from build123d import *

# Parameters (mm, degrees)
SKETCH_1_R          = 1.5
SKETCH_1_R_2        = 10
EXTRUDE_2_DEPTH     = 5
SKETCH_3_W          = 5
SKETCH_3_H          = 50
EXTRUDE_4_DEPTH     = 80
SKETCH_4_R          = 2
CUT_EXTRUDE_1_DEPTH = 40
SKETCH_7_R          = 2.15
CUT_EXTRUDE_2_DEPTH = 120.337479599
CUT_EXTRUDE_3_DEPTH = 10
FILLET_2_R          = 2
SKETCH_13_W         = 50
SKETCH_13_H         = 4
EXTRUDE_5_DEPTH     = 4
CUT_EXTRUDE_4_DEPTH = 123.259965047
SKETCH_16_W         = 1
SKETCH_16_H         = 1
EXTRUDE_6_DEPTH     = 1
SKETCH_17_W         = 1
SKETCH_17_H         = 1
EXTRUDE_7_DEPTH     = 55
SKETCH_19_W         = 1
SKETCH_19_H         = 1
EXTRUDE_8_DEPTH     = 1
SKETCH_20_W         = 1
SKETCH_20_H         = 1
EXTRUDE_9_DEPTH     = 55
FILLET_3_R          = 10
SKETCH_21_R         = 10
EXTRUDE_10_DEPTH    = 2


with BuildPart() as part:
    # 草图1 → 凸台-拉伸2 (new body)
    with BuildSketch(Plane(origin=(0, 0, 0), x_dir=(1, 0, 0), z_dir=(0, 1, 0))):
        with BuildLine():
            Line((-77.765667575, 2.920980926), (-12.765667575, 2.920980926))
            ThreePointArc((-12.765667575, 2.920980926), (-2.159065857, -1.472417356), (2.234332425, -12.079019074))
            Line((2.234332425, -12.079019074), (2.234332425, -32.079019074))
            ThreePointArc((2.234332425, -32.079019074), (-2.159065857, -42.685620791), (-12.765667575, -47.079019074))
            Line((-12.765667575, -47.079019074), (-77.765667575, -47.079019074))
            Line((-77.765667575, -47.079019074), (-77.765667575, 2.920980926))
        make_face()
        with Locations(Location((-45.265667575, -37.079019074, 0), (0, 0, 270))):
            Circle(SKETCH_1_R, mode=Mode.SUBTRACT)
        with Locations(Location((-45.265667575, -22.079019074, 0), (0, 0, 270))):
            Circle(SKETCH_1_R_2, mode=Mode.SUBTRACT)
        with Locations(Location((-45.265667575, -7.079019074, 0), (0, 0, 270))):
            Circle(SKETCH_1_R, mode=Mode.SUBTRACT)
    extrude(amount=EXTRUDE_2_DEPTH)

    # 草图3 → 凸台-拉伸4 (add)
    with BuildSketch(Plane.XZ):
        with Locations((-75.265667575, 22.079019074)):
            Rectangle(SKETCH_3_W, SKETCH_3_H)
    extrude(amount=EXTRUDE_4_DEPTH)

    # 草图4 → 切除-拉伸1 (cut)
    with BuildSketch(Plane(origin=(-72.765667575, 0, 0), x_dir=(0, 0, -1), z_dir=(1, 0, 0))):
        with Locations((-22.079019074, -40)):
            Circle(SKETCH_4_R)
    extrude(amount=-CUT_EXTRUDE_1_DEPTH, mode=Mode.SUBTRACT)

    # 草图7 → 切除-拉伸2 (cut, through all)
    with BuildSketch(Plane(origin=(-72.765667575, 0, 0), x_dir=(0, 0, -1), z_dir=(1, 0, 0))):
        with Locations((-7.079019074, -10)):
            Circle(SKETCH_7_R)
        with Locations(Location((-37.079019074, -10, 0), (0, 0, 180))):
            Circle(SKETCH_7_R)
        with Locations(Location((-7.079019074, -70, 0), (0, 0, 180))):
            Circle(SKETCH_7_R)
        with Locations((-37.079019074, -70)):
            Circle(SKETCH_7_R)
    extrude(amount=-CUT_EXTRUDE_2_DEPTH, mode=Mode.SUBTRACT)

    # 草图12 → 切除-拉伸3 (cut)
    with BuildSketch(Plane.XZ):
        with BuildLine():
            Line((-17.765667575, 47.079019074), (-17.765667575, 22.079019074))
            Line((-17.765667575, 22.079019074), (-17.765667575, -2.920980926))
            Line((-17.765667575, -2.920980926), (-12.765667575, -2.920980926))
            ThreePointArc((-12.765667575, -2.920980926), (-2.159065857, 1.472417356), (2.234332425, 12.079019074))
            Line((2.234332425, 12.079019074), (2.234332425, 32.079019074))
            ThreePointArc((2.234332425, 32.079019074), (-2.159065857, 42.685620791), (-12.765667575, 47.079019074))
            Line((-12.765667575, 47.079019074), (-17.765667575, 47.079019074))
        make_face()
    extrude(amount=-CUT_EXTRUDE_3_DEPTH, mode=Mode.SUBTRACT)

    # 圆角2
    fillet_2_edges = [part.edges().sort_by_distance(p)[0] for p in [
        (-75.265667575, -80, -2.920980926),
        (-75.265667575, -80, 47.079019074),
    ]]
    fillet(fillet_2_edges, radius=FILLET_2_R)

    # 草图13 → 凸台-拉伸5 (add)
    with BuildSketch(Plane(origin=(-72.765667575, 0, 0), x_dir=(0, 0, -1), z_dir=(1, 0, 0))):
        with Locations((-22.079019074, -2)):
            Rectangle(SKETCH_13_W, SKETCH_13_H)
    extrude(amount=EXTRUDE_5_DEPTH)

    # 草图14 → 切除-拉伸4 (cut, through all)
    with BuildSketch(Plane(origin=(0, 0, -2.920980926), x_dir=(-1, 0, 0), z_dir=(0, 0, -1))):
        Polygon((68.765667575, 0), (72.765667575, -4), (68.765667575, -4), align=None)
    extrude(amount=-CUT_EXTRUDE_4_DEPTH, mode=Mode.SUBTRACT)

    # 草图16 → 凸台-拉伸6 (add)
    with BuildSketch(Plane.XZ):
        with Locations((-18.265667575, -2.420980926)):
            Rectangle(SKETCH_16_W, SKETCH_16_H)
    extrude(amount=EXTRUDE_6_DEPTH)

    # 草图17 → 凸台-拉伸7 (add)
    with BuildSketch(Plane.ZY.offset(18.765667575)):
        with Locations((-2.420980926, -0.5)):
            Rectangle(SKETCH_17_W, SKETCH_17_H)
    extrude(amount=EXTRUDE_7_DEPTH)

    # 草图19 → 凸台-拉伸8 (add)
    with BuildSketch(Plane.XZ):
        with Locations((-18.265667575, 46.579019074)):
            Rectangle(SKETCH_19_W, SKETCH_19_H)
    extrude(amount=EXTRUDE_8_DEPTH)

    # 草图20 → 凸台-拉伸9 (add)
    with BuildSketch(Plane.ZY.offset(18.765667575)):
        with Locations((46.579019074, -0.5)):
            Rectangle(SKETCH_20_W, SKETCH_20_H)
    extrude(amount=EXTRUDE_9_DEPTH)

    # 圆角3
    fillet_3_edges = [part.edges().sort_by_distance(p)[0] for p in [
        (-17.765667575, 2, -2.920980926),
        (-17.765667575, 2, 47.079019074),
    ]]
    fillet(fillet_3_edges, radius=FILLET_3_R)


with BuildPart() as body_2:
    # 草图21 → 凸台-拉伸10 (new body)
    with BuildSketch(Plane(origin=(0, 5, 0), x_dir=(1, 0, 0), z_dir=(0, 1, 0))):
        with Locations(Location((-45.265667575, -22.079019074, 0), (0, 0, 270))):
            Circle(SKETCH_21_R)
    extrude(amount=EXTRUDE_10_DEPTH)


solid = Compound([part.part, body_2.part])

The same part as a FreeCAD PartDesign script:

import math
import FreeCAD as App
import Part
import Sketcher

V = App.Vector
Q = App.Units.Quantity


def edges_at(feature, points):
    """Names of the edges that pass closest to the given points."""
    edges = feature.Shape.Edges
    near = lambda p: min(range(len(edges)), key=lambda i: edges[i].distToShape(Part.Vertex(*p))[0])
    return sorted({f"Edge{near(p) + 1}" for p in points})

doc = App.newDocument("Part")
params = doc.addObject("Spreadsheet::Sheet", "Params")
for row, (alias, value) in enumerate([
    ("sketch1_diameter", "3 mm"),
    ("sketch1_diameter2", "20 mm"),
    ("sketch1_radius", "15 mm"),
    ("sketch1_width", "65 mm"),
    ("sketch1_height", "50 mm"),
    ("pad1_length", "5 mm"),
    ("sketch2_width", "5 mm"),
    ("sketch2_height", "50 mm"),
    ("pad2_length", "80 mm"),
    ("sketch3_diameter", "4 mm"),
    ("pocket1_length", "40 mm"),
    ("sketch4_diameter", "4.3 mm"),
    ("sketch5_radius", "15 mm"),
    ("sketch5_width", "5 mm"),
    ("sketch5_height", "50 mm"),
    ("pocket3_length", "10 mm"),
    ("fillet_radius", "2 mm"),
    ("sketch6_width", "4 mm"),
    ("sketch6_height", "50 mm"),
    ("pad3_length", "4 mm"),
    ("sketch7_width", "4 mm"),
    ("sketch8_width", "1 mm"),
    ("pad4_length", "1 mm"),
    ("sketch9_width", "1 mm"),
    ("pad5_length", "55 mm"),
    ("sketch10_width", "1 mm"),
    ("pad6_length", "1 mm"),
    ("sketch11_width", "1 mm"),
    ("pad7_length", "55 mm"),
    ("fillet2_radius", "10 mm"),
    ("sketch12_diameter", "20 mm"),
    ("pad8_length", "2 mm"),
], start=1):
    params.set(f"A{row}", alias)
    params.set(f"B{row}", "=" + value)
    params.setAlias(f"B{row}", alias)

body = doc.addObject("PartDesign::Body", "Body")

# Sketch on XZ plane
sketch1 = body.newObject("Sketcher::SketchObject", "Sketch")
sketch1.AttachmentSupport = (doc.getObject("XZ_Plane"), [""])
sketch1.MapMode = "FlatFace"
sketch1.addGeometry([
    Part.LineSegment(V(-12.8, -2.9, 0), V(-77.8, -2.9, 0)),  # 0
    Part.LineSegment(V(-77.8, -2.9, 0), V(-77.8, 47.1, 0)),  # 1
    Part.LineSegment(V(-77.8, 47.1, 0), V(-12.8, 47.1, 0)),  # 2
    Part.ArcOfCircle(Part.Circle(V(-12.8, 32.1, 0), V(0, 0, 1), 15), math.radians(0), math.radians(90)),  # 3
    Part.LineSegment(V(2.2, 32.1, 0), V(2.2, 12.1, 0)),  # 4
    Part.ArcOfCircle(Part.Circle(V(-12.8, 12.1, 0), V(0, 0, 1), 15), math.radians(-90), math.radians(0)),  # 5
    Part.Circle(V(-45.3, 37.1, 0), V(0, 0, 1), 1.5),  # 6
    Part.Circle(V(-45.3, 22.1, 0), V(0, 0, 1), 10),  # 7
    Part.Circle(V(-45.3, 7.1, 0), V(0, 0, 1), 1.5),  # 8
], False)
sketch1.addConstraint([
    Sketcher.Constraint("Coincident", 0, 2, 1, 1),
    Sketcher.Constraint("Coincident", 1, 2, 2, 1),
    Sketcher.Constraint("Tangent", 2, 2, 3, 2),
    Sketcher.Constraint("Tangent", 3, 1, 4, 1),
    Sketcher.Constraint("Tangent", 4, 2, 5, 2),
    Sketcher.Constraint("Tangent", 5, 1, 0, 1),
    Sketcher.Constraint("Horizontal", 0),
    Sketcher.Constraint("Vertical", 1),
    Sketcher.Constraint("Horizontal", 2),
    Sketcher.Constraint("Vertical", 4),
    Sketcher.Constraint("Equal", 3, 5),
    Sketcher.Constraint("Equal", 6, 8),
    Sketcher.Constraint("Vertical", 6, 3, 7, 3),
    Sketcher.Constraint("Vertical", 7, 3, 8, 3),
    Sketcher.Constraint("Diameter", 6, Q("3 mm")),
    Sketcher.Constraint("Diameter", 7, Q("20 mm")),
    Sketcher.Constraint("Radius", 3, Q("15 mm")),
    Sketcher.Constraint("DistanceX", 0, 2, 0, 1, Q("65 mm")),
    Sketcher.Constraint("DistanceY", 1, 1, 1, 2, Q("50 mm")),
    Sketcher.Constraint("DistanceY", 3, 3, 6, 3, Q("5 mm")),
    Sketcher.Constraint("DistanceY", 7, 3, 6, 3, Q("15 mm")),
    Sketcher.Constraint("DistanceY", 8, 3, 7, 3, Q("15 mm")),
    Sketcher.Constraint("DistanceX", 6, 3, 3, 3, Q("32.5 mm")),
    Sketcher.Constraint("DistanceY", -1, 1, 3, 3, Q("32.079019 mm")),
    Sketcher.Constraint("DistanceX", 3, 3, -1, 1, Q("12.765668 mm")),
])
sketch1.setExpression("Constraints[14]", "Params.sketch1_diameter")
sketch1.setExpression("Constraints[15]", "Params.sketch1_diameter2")
sketch1.setExpression("Constraints[16]", "Params.sketch1_radius")
sketch1.setExpression("Constraints[17]", "Params.sketch1_width")
sketch1.setExpression("Constraints[18]", "Params.sketch1_height")
pad1 = body.newObject("PartDesign::Pad", "Pad")
pad1.Profile = sketch1
pad1.setExpression("Length", "Params.pad1_length")
pad1.Reversed = True

# Sketch on XZ plane
sketch2 = body.newObject("Sketcher::SketchObject", "Sketch001")
sketch2.AttachmentSupport = (doc.getObject("XZ_Plane"), [""])
sketch2.MapMode = "FlatFace"
sketch2.addGeometry([
    Part.LineSegment(V(-78, 47, 0), V(-78, -3, 0)),
    Part.LineSegment(V(-78, -3, 0), V(-73, -3, 0)),
    Part.LineSegment(V(-73, -3, 0), V(-73, 47, 0)),
    Part.LineSegment(V(-73, 47, 0), V(-78, 47, 0)),
], False)
sketch2.addConstraint([
    Sketcher.Constraint("Coincident", 0, 2, 1, 1),
    Sketcher.Constraint("Coincident", 1, 2, 2, 1),
    Sketcher.Constraint("Coincident", 2, 2, 3, 1),
    Sketcher.Constraint("Coincident", 3, 2, 0, 1),
    Sketcher.Constraint("Vertical", 0),
    Sketcher.Constraint("Horizontal", 1),
    Sketcher.Constraint("Vertical", 2),
    Sketcher.Constraint("Horizontal", 3),
    Sketcher.Constraint("DistanceX", 1, 1, 1, 2, Q("5 mm")),
    Sketcher.Constraint("DistanceY", 0, 2, 0, 1, Q("50 mm")),
    Sketcher.Constraint("DistanceY", 0, 2, -1, 1, Q("2.920981 mm")),
    Sketcher.Constraint("DistanceX", 0, 2, -1, 1, Q("77.765668 mm")),
])
sketch2.setExpression("Constraints[8]", "Params.sketch2_width")
sketch2.setExpression("Constraints[9]", "Params.sketch2_height")
pad2 = body.newObject("PartDesign::Pad", "Pad001")
pad2.Profile = sketch2
pad2.setExpression("Length", "Params.pad2_length")

# Sketch on YZ plane
sketch3 = body.newObject("Sketcher::SketchObject", "Sketch002")
sketch3.AttachmentSupport = (doc.getObject("YZ_Plane"), [""])
sketch3.MapMode = "FlatFace"
sketch3.AttachmentOffset = App.Placement(V(0, 0, -72.765668), App.Rotation())
sketch3.addGeometry(Part.Circle(V(-40, 22.1, 0), V(0, 0, 1), 2), False)
sketch3.addConstraint([
    Sketcher.Constraint("Diameter", 0, Q("4 mm")),
    Sketcher.Constraint("DistanceX", 0, 3, -1, 1, Q("40 mm")),
    Sketcher.Constraint("DistanceY", -1, 1, 0, 3, Q("22.079019 mm")),
])
sketch3.setExpression("Constraints[0]", "Params.sketch3_diameter")
pocket1 = body.newObject("PartDesign::Pocket", "Pocket")
pocket1.Profile = sketch3
pocket1.setExpression("Length", "Params.pocket1_length")

# Sketch on YZ plane
sketch4 = body.newObject("Sketcher::SketchObject", "Sketch003")
sketch4.AttachmentSupport = (doc.getObject("YZ_Plane"), [""])
sketch4.MapMode = "FlatFace"
sketch4.AttachmentOffset = App.Placement(V(0, 0, -72.765668), App.Rotation())
sketch4.addGeometry([
    Part.Circle(V(-10, 7.1, 0), V(0, 0, 1), 2.1),
    Part.Circle(V(-10, 37.1, 0), V(0, 0, 1), 2.1),
    Part.Circle(V(-70, 7.1, 0), V(0, 0, 1), 2.1),
    Part.Circle(V(-70, 37.1, 0), V(0, 0, 1), 2.1),
], False)
sketch4.addConstraint([
    Sketcher.Constraint("Equal", 0, 1),
    Sketcher.Constraint("Equal", 1, 2),
    Sketcher.Constraint("Equal", 2, 3),
    Sketcher.Constraint("Horizontal", 0, 3, 2, 3),
    Sketcher.Constraint("Horizontal", 1, 3, 3, 3),
    Sketcher.Constraint("Vertical", 0, 3, 1, 3),
    Sketcher.Constraint("Vertical", 2, 3, 3, 3),
    Sketcher.Constraint("Diameter", 0, Q("4.3 mm")),
    Sketcher.Constraint("DistanceX", 0, 3, -1, 1, Q("10 mm")),
    Sketcher.Constraint("DistanceX", 2, 3, -1, 1, Q("70 mm")),
    Sketcher.Constraint("DistanceY", 0, 3, 1, 3, Q("30 mm")),
    Sketcher.Constraint("DistanceY", -1, 1, 0, 3, Q("7.079019 mm")),
])
sketch4.setExpression("Constraints[7]", "Params.sketch4_diameter")
pocket2 = body.newObject("PartDesign::Pocket", "Pocket001")
pocket2.Profile = sketch4
pocket2.Type = "ThroughAll"

# Sketch on XZ plane
sketch5 = body.newObject("Sketcher::SketchObject", "Sketch004")
sketch5.AttachmentSupport = (doc.getObject("XZ_Plane"), [""])
sketch5.MapMode = "FlatFace"
sketch5.addGeometry([
    Part.LineSegment(V(-17.8, 47.1, 0), V(-17.8, -2.9, 0)),  # 0
    Part.LineSegment(V(-17.8, -2.9, 0), V(-12.8, -2.9, 0)),  # 1
    Part.ArcOfCircle(Part.Circle(V(-12.8, 12.1, 0), V(0, 0, 1), 15), math.radians(-90), math.radians(0)),  # 2
    Part.LineSegment(V(2.2, 12.1, 0), V(2.2, 32.1, 0)),  # 3
    Part.ArcOfCircle(Part.Circle(V(-12.8, 32.1, 0), V(0, 0, 1), 15), math.radians(0), math.radians(90)),  # 4
    Part.LineSegment(V(-12.8, 47.1, 0), V(-17.8, 47.1, 0)),  # 5
], False)
sketch5.addConstraint([
    Sketcher.Constraint("Coincident", 0, 2, 1, 1),
    Sketcher.Constraint("Tangent", 1, 2, 2, 1),
    Sketcher.Constraint("Tangent", 2, 2, 3, 1),
    Sketcher.Constraint("Tangent", 3, 2, 4, 1),
    Sketcher.Constraint("Tangent", 4, 2, 5, 1),
    Sketcher.Constraint("Coincident", 5, 2, 0, 1),
    Sketcher.Constraint("Vertical", 0),
    Sketcher.Constraint("Horizontal", 1),
    Sketcher.Constraint("Vertical", 3),
    Sketcher.Constraint("Horizontal", 5),
    Sketcher.Constraint("Equal", 2, 4),
    Sketcher.Constraint("Radius", 2, Q("15 mm")),
    Sketcher.Constraint("DistanceX", 1, 1, 1, 2, Q("5 mm")),
    Sketcher.Constraint("DistanceY", 0, 2, 0, 1, Q("50 mm")),
    Sketcher.Constraint("DistanceY", -1, 1, 2, 3, Q("12.079019 mm")),
    Sketcher.Constraint("DistanceX", 2, 3, -1, 1, Q("12.765668 mm")),
])
sketch5.setExpression("Constraints[11]", "Params.sketch5_radius")
sketch5.setExpression("Constraints[12]", "Params.sketch5_width")
sketch5.setExpression("Constraints[13]", "Params.sketch5_height")
pocket3 = body.newObject("PartDesign::Pocket", "Pocket002")
pocket3.Profile = sketch5
pocket3.setExpression("Length", "Params.pocket3_length")
doc.recompute()

fillet = body.newObject("PartDesign::Fillet", "Fillet")
fillet.Base = (pocket3, edges_at(pocket3, [(-75.266, -80, -2.921), (-75.266, -80, 47.079)]))
fillet.setExpression("Radius", "Params.fillet_radius")

# Sketch on YZ plane
sketch6 = body.newObject("Sketcher::SketchObject", "Sketch005")
sketch6.AttachmentSupport = (doc.getObject("YZ_Plane"), [""])
sketch6.MapMode = "FlatFace"
sketch6.AttachmentOffset = App.Placement(V(0, 0, -72.765668), App.Rotation())
sketch6.addGeometry([
    Part.LineSegment(V(0, 47.1, 0), V(-4, 47.1, 0)),
    Part.LineSegment(V(-4, 47.1, 0), V(-4, -2.9, 0)),
    Part.LineSegment(V(-4, -2.9, 0), V(0, -2.9, 0)),
    Part.LineSegment(V(0, -2.9, 0), V(0, 47.1, 0)),
], False)
sketch6.addConstraint([
    Sketcher.Constraint("Coincident", 0, 2, 1, 1),
    Sketcher.Constraint("Coincident", 1, 2, 2, 1),
    Sketcher.Constraint("Coincident", 2, 2, 3, 1),
    Sketcher.Constraint("Coincident", 3, 2, 0, 1),
    Sketcher.Constraint("Horizontal", 0),
    Sketcher.Constraint("Vertical", 1),
    Sketcher.Constraint("Horizontal", 2),
    Sketcher.Constraint("Vertical", 3),
    Sketcher.Constraint("PointOnObject", 2, 2, -2),
    Sketcher.Constraint("DistanceX", 0, 2, 0, 1, Q("4 mm")),
    Sketcher.Constraint("DistanceY", 1, 2, 1, 1, Q("50 mm")),
    Sketcher.Constraint("DistanceY", -1, 1, 0, 2, Q("47.079019 mm")),
])
sketch6.setExpression("Constraints[9]", "Params.sketch6_width")
sketch6.setExpression("Constraints[10]", "Params.sketch6_height")
pad3 = body.newObject("PartDesign::Pad", "Pad002")
pad3.Profile = sketch6
pad3.setExpression("Length", "Params.pad3_length")

# Sketch on XY plane
sketch7 = body.newObject("Sketcher::SketchObject", "Sketch006")
sketch7.AttachmentSupport = (doc.getObject("XY_Plane"), [""])
sketch7.MapMode = "FlatFace"
sketch7.AttachmentOffset = App.Placement(V(0, 0, -2.920981), App.Rotation())
sketch7.addGeometry([
    Part.LineSegment(V(-72.8, -4, 0), V(-68.8, 0, 0)),
    Part.LineSegment(V(-68.8, 0, 0), V(-68.8, -4, 0)),
    Part.LineSegment(V(-68.8, -4, 0), V(-72.8, -4, 0)),
], False)
sketch7.addConstraint([
    Sketcher.Constraint("Coincident", 0, 2, 1, 1),
    Sketcher.Constraint("Coincident", 1, 2, 2, 1),
    Sketcher.Constraint("Coincident", 2, 2, 0, 1),
    Sketcher.Constraint("Vertical", 1),
    Sketcher.Constraint("Horizontal", 2),
    Sketcher.Constraint("PointOnObject", 0, 2, -1),
    Sketcher.Constraint("Equal", 2, 1),
    Sketcher.Constraint("DistanceX", 2, 2, 2, 1, Q("4 mm")),
    Sketcher.Constraint("DistanceX", 0, 2, -1, 1, Q("68.765668 mm")),
])
sketch7.setExpression("Constraints[7]", "Params.sketch7_width")
pocket4 = body.newObject("PartDesign::Pocket", "Pocket003")
pocket4.Profile = sketch7
pocket4.Type = "ThroughAll"
pocket4.Reversed = True

# Sketch on XZ plane
sketch8 = body.newObject("Sketcher::SketchObject", "Sketch007")
sketch8.AttachmentSupport = (doc.getObject("XZ_Plane"), [""])
sketch8.MapMode = "FlatFace"
sketch8.addGeometry([
    Part.LineSegment(V(-18.8, -1.9, 0), V(-18.8, -2.9, 0)),
    Part.LineSegment(V(-18.8, -2.9, 0), V(-17.8, -2.9, 0)),
    Part.LineSegment(V(-17.8, -2.9, 0), V(-17.8, -1.9, 0)),
    Part.LineSegment(V(-17.8, -1.9, 0), V(-18.8, -1.9, 0)),
], False)
sketch8.addConstraint([
    Sketcher.Constraint("Coincident", 0, 2, 1, 1),
    Sketcher.Constraint("Coincident", 1, 2, 2, 1),
    Sketcher.Constraint("Coincident", 2, 2, 3, 1),
    Sketcher.Constraint("Coincident", 3, 2, 0, 1),
    Sketcher.Constraint("Vertical", 0),
    Sketcher.Constraint("Horizontal", 1),
    Sketcher.Constraint("Vertical", 2),
    Sketcher.Constraint("Horizontal", 3),
    Sketcher.Constraint("Equal", 3, 0),
    Sketcher.Constraint("DistanceX", 1, 1, 1, 2, Q("1 mm")),
    Sketcher.Constraint("DistanceY", 0, 2, -1, 1, Q("2.920981 mm")),
    Sketcher.Constraint("DistanceX", 0, 2, -1, 1, Q("18.765668 mm")),
])
sketch8.setExpression("Constraints[9]", "Params.sketch8_width")
pad4 = body.newObject("PartDesign::Pad", "Pad003")
pad4.Profile = sketch8
pad4.setExpression("Length", "Params.pad4_length")

# Sketch on YZ plane
sketch9 = body.newObject("Sketcher::SketchObject", "Sketch008")
sketch9.AttachmentSupport = (doc.getObject("YZ_Plane"), [""])
sketch9.MapMode = "FlatFace"
sketch9.AttachmentOffset = App.Placement(V(0, 0, -18.765668), App.Rotation())
sketch9.addGeometry([
    Part.LineSegment(V(0, -2.9, 0), V(-1, -2.9, 0)),
    Part.LineSegment(V(-1, -2.9, 0), V(-1, -1.9, 0)),
    Part.LineSegment(V(-1, -1.9, 0), V(0, -1.9, 0)),
    Part.LineSegment(V(0, -1.9, 0), V(0, -2.9, 0)),
], False)
sketch9.addConstraint([
    Sketcher.Constraint("Coincident", 0, 2, 1, 1),
    Sketcher.Constraint("Coincident", 1, 2, 2, 1),
    Sketcher.Constraint("Coincident", 2, 2, 3, 1),
    Sketcher.Constraint("Coincident", 3, 2, 0, 1),
    Sketcher.Constraint("Horizontal", 0),
    Sketcher.Constraint("Vertical", 1),
    Sketcher.Constraint("Horizontal", 2),
    Sketcher.Constraint("Vertical", 3),
    Sketcher.Constraint("PointOnObject", 2, 2, -2),
    Sketcher.Constraint("Equal", 2, 1),
    Sketcher.Constraint("DistanceX", 0, 2, 0, 1, Q("1 mm")),
    Sketcher.Constraint("DistanceY", 0, 2, -1, 1, Q("2.920981 mm")),
])
sketch9.setExpression("Constraints[10]", "Params.sketch9_width")
pad5 = body.newObject("PartDesign::Pad", "Pad004")
pad5.Profile = sketch9
pad5.setExpression("Length", "Params.pad5_length")
pad5.Reversed = True

# Sketch on XZ plane
sketch10 = body.newObject("Sketcher::SketchObject", "Sketch009")
sketch10.AttachmentSupport = (doc.getObject("XZ_Plane"), [""])
sketch10.MapMode = "FlatFace"
sketch10.addGeometry([
    Part.LineSegment(V(-18.8, 47.1, 0), V(-18.8, 46.1, 0)),
    Part.LineSegment(V(-18.8, 46.1, 0), V(-17.8, 46.1, 0)),
    Part.LineSegment(V(-17.8, 46.1, 0), V(-17.8, 47.1, 0)),
    Part.LineSegment(V(-17.8, 47.1, 0), V(-18.8, 47.1, 0)),
], False)
sketch10.addConstraint([
    Sketcher.Constraint("Coincident", 0, 2, 1, 1),
    Sketcher.Constraint("Coincident", 1, 2, 2, 1),
    Sketcher.Constraint("Coincident", 2, 2, 3, 1),
    Sketcher.Constraint("Coincident", 3, 2, 0, 1),
    Sketcher.Constraint("Vertical", 0),
    Sketcher.Constraint("Horizontal", 1),
    Sketcher.Constraint("Vertical", 2),
    Sketcher.Constraint("Horizontal", 3),
    Sketcher.Constraint("Equal", 3, 0),
    Sketcher.Constraint("DistanceX", 1, 1, 1, 2, Q("1 mm")),
    Sketcher.Constraint("DistanceY", -1, 1, 0, 2, Q("46.079019 mm")),
    Sketcher.Constraint("DistanceX", 0, 2, -1, 1, Q("18.765668 mm")),
])
sketch10.setExpression("Constraints[9]", "Params.sketch10_width")
pad6 = body.newObject("PartDesign::Pad", "Pad005")
pad6.Profile = sketch10
pad6.setExpression("Length", "Params.pad6_length")

# Sketch on YZ plane
sketch11 = body.newObject("Sketcher::SketchObject", "Sketch010")
sketch11.AttachmentSupport = (doc.getObject("YZ_Plane"), [""])
sketch11.MapMode = "FlatFace"
sketch11.AttachmentOffset = App.Placement(V(0, 0, -18.765668), App.Rotation())
sketch11.addGeometry([
    Part.LineSegment(V(0, 46.1, 0), V(-1, 46.1, 0)),
    Part.LineSegment(V(-1, 46.1, 0), V(-1, 47.1, 0)),
    Part.LineSegment(V(-1, 47.1, 0), V(0, 47.1, 0)),
    Part.LineSegment(V(0, 47.1, 0), V(0, 46.1, 0)),
], False)
sketch11.addConstraint([
    Sketcher.Constraint("Coincident", 0, 2, 1, 1),
    Sketcher.Constraint("Coincident", 1, 2, 2, 1),
    Sketcher.Constraint("Coincident", 2, 2, 3, 1),
    Sketcher.Constraint("Coincident", 3, 2, 0, 1),
    Sketcher.Constraint("Horizontal", 0),
    Sketcher.Constraint("Vertical", 1),
    Sketcher.Constraint("Horizontal", 2),
    Sketcher.Constraint("Vertical", 3),
    Sketcher.Constraint("PointOnObject", 2, 2, -2),
    Sketcher.Constraint("Equal", 2, 1),
    Sketcher.Constraint("DistanceX", 0, 2, 0, 1, Q("1 mm")),
    Sketcher.Constraint("DistanceY", -1, 1, 0, 2, Q("46.079019 mm")),
])
sketch11.setExpression("Constraints[10]", "Params.sketch11_width")
pad7 = body.newObject("PartDesign::Pad", "Pad006")
pad7.Profile = sketch11
pad7.setExpression("Length", "Params.pad7_length")
pad7.Reversed = True
doc.recompute()

fillet2 = body.newObject("PartDesign::Fillet", "Fillet001")
fillet2.Base = (pad7, edges_at(pad7, [(-17.766, 2, -2.921), (-17.766, 2, 47.079)]))
fillet2.setExpression("Radius", "Params.fillet2_radius")
body2 = doc.addObject("PartDesign::Body", "Body001")

# Sketch on XZ plane
sketch12 = body2.newObject("Sketcher::SketchObject", "Sketch011")
sketch12.AttachmentSupport = (doc.getObject("XZ_Plane001"), [""])
sketch12.MapMode = "FlatFace"
sketch12.AttachmentOffset = App.Placement(V(0, 0, -5), App.Rotation())
sketch12.addGeometry(Part.Circle(V(-45, 22, 0), V(0, 0, 1), 10), False)
sketch12.addConstraint([
    Sketcher.Constraint("Diameter", 0, Q("20 mm")),
    Sketcher.Constraint("DistanceY", -1, 1, 0, 3, Q("22.079019 mm")),
    Sketcher.Constraint("DistanceX", 0, 3, -1, 1, Q("45.265668 mm")),
])
sketch12.setExpression("Constraints[0]", "Params.sketch12_diameter")
pad8 = body2.newObject("PartDesign::Pad", "Pad007")
pad8.Profile = sketch12
pad8.setExpression("Length", "Params.pad8_length")
pad8.Reversed = True

doc.recompute()
